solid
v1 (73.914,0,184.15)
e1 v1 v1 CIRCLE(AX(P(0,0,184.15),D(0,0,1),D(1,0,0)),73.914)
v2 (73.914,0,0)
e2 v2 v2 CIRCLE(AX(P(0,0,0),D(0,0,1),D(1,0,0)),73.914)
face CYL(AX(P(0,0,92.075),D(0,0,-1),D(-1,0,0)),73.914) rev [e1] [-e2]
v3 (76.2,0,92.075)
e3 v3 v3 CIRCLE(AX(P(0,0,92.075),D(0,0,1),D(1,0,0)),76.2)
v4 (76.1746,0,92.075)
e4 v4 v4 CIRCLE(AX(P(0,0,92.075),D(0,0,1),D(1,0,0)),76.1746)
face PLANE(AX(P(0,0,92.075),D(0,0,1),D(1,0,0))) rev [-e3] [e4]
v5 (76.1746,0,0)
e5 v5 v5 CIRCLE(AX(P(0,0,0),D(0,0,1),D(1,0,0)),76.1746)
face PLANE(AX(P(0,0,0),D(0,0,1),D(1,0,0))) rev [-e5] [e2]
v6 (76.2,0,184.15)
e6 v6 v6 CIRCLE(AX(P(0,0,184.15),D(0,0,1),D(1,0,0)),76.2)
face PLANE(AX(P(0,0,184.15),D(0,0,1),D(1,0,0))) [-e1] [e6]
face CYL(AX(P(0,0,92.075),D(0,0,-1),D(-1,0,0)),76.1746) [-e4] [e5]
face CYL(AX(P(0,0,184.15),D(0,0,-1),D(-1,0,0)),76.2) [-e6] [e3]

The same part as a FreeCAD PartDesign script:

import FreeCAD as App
import Part
import Sketcher
from FreeCAD import Vector
Q = App.Units.Quantity

doc = App.newDocument("Part")
params = doc.addObject("Spreadsheet::Sheet", "Params")
for row, (alias, value) in enumerate([
    ("sketch1_diameter", "5.82 in"),
    ("sketch1_diameter2", "5.998 in"),
    ("pad1_length", "3.625 in"),
    ("sketch2_diameter", "6 in"),
    ("sketch2_diameter2", "5.82 in"),
    ("pad2_length", "3.625 in"),
], start=1):
    params.set(f"A{row}", alias)
    params.set(f"B{row}", "=" + value)
    params.setAlias(f"B{row}", alias)

body = doc.addObject("PartDesign::Body", "Body")

# Sketch on XY plane
sketch1 = body.newObject("Sketcher::SketchObject", "Sketch")
sketch1.AttachmentSupport = (doc.getObject("XY_Plane"), [""])
sketch1.MapMode = "FlatFace"
sketch1.addGeometry([
    Part.Circle(Vector(0, 0, 0), Vector(0, 0, 1), 76.1746),
    Part.Circle(Vector(0, 0, 0), Vector(0, 0, 1), 73.914),
], False)
sketch1.addConstraint([
    Sketcher.Constraint("Coincident", 0, 3, -1, 1),
    Sketcher.Constraint("Coincident", 1, 3, -1, 1),
    Sketcher.Constraint("Diameter", 1, Q("5.82 in")),
    Sketcher.Constraint("Diameter", 0, Q("5.998 in")),
])
sketch1.setExpression("Constraints[2]", "Params.sketch1_diameter")
sketch1.setExpression("Constraints[3]", "Params.sketch1_diameter2")
pad1 = body.newObject("PartDesign::Pad", "Pad")
pad1.Profile = sketch1
pad1.setExpression("Length", "Params.pad1_length")

# Sketch on XY plane
sketch2 = body.newObject("Sketcher::SketchObject", "Sketch001")
sketch2.AttachmentSupport = (doc.getObject("XY_Plane"), [""])
sketch2.MapMode = "FlatFace"
sketch2.AttachmentOffset = App.Placement(Vector(0, 0, 3.625 * 25.4), App.Rotation())
sketch2.addGeometry([
    Part.Circle(Vector(0, 0, 0), Vector(0, 0, 1), 76.2),
    Part.Circle(Vector(0, 0, 0), Vector(0, 0, 1), 73.914),
], False)
sketch2.addConstraint([
    Sketcher.Constraint("Coincident", 0, 3, -1, 1),
    Sketcher.Constraint("Coincident", 1, 3, -1, 1),
    Sketcher.Constraint("Diameter", 0, Q("6 in")),
    Sketcher.Constraint("Diameter", 1, Q("5.82 in")),
])
sketch2.setExpression("Constraints[2]", "Params.sketch2_diameter")
sketch2.setExpression("Constraints[3]", "Params.sketch2_diameter2")
pad2 = body.newObject("PartDesign::Pad", "Pad001")
pad2.Profile = sketch2
pad2.setExpression("Length", "Params.pad2_length")

doc.recompute()
